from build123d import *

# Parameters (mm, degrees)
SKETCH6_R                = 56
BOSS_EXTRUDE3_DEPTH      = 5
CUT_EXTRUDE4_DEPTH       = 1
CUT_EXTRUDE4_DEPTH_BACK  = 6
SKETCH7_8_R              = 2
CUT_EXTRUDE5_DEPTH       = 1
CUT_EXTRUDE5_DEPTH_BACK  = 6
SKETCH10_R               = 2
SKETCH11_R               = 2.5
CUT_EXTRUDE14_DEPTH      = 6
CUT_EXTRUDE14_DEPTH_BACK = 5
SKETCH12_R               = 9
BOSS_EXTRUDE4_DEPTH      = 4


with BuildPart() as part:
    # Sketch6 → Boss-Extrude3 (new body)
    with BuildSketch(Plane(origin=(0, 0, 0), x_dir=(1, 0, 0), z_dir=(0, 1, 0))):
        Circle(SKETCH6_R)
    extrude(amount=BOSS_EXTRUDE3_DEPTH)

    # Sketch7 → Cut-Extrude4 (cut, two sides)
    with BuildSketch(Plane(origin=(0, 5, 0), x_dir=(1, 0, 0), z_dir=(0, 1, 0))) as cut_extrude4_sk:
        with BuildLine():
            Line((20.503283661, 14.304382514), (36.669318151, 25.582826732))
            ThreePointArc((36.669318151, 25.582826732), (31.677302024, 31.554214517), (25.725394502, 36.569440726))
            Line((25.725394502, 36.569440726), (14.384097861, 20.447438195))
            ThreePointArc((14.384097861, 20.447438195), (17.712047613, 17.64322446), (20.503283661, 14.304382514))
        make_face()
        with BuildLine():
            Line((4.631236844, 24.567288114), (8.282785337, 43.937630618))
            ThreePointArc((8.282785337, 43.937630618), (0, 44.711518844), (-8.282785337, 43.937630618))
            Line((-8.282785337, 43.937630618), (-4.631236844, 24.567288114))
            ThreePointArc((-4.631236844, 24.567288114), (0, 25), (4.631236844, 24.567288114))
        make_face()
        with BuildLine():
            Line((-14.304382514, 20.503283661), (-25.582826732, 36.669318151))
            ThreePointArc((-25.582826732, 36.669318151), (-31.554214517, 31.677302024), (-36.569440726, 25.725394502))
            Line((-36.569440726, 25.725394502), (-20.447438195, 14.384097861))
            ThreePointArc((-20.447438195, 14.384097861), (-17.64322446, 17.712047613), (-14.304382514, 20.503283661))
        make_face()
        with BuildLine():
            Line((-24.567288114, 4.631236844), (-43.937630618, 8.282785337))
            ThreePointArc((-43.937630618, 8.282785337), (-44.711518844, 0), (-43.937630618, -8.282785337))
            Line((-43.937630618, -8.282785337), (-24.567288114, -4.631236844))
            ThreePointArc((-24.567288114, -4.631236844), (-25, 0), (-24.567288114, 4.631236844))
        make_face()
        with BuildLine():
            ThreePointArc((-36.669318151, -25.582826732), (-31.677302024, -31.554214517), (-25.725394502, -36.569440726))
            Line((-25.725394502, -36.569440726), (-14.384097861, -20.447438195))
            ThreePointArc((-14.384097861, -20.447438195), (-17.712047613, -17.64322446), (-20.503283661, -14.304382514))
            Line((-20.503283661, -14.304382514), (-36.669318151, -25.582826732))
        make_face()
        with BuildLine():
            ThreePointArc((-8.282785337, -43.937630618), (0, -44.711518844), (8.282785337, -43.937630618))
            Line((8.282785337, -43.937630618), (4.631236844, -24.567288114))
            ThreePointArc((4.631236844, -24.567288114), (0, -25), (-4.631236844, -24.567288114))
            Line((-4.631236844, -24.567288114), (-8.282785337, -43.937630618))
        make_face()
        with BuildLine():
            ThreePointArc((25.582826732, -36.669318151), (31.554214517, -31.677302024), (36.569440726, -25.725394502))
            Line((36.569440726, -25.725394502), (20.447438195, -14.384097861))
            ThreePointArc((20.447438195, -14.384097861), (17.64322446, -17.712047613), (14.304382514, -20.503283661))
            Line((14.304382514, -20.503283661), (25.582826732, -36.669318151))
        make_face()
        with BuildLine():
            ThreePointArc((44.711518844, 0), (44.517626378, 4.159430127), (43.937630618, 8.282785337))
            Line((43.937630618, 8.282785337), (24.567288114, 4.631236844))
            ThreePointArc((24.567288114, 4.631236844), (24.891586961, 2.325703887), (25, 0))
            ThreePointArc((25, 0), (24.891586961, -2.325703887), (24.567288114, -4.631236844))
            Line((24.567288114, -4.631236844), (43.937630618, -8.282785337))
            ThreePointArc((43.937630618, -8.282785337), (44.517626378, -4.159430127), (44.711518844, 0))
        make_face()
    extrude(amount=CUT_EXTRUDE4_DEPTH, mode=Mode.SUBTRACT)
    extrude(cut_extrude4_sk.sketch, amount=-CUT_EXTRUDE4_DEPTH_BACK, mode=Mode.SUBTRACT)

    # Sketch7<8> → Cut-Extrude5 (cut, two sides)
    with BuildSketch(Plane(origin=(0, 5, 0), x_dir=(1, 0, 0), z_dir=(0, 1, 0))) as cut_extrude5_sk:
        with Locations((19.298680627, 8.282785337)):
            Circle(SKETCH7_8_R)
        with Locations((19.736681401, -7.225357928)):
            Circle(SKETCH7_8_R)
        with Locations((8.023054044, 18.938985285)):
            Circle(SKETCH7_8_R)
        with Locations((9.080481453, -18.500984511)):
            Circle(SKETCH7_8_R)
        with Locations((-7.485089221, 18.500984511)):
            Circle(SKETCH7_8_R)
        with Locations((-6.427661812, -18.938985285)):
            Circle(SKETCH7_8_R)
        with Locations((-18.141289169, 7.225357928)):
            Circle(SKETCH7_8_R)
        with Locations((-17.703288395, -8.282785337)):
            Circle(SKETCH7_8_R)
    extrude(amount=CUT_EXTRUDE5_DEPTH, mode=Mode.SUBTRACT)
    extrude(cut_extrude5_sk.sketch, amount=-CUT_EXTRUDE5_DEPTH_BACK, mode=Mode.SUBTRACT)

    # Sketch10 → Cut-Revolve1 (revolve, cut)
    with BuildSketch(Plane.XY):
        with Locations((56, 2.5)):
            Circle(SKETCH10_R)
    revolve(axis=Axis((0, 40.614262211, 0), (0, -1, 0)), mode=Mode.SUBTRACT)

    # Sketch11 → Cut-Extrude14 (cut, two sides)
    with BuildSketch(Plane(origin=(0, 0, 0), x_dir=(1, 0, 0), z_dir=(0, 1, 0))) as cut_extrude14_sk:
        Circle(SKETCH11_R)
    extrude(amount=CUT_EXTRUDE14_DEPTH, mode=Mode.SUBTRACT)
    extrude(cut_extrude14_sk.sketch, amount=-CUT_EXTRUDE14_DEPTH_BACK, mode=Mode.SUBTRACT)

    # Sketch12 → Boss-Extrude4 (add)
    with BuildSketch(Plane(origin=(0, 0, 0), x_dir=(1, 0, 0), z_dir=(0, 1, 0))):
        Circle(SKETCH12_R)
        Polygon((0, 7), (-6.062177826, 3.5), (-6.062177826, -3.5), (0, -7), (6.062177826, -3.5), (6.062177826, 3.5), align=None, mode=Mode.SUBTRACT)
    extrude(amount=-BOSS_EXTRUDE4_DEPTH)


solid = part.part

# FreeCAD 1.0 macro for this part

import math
import FreeCAD as App
import Part
import Sketcher
from FreeCAD import Vector
Q = App.Units.Quantity


def add_polygon(sketch, points):
    """Adds a closed chain of lines whose ends are joined by coincident constraints."""
    first, n = sketch.GeometryCount, len(points)
    for a, b in zip(points, points[1:] + points[:1]):
        sketch.addGeometry(Part.LineSegment(App.Vector(*a, 0), App.Vector(*b, 0)), False)
    for i in range(n):
        sketch.addConstraint(Sketcher.Constraint("Coincident", first + i, 2, first + (i + 1) % n, 1))

doc = App.newDocument("Part")
body = doc.addObject("PartDesign::Body", "Body")

# Sketch on XZ plane
sketch1 = body.newObject("Sketcher::SketchObject", "Sketch")
sketch1.AttachmentSupport = (doc.getObject("XZ_Plane"), [""])
sketch1.MapMode = "FlatFace"
sketch1.addGeometry(Part.Circle(Vector(0, 0, 0), Vector(0, 0, 1), 56), False)
sketch1.addConstraint(Sketcher.Constraint("Coincident", 0, 3, -1, 1))
sketch1.addConstraint(Sketcher.Constraint("Diameter", 0, 112.0))
pad1 = body.newObject("PartDesign::Pad", "Pad")
pad1.Profile = sketch1
pad1.Length = 5
pad1.Reversed = True

# Sketch on XZ plane
sketch2 = body.newObject("Sketcher::SketchObject", "Sketch001")
sketch2.AttachmentSupport = (doc.getObject("XZ_Plane"), [""])
sketch2.MapMode = "FlatFace"
sketch2.AttachmentOffset = App.Placement(Vector(0, 0, -5), App.Rotation())
sketch2.addGeometry(Part.LineSegment(Vector(20.5, -14.3, 0), Vector(36.7, -25.6, 0)), False)
sketch2.addGeometry(Part.ArcOfCircle(Part.Circle(Vector(0, 0, 0), Vector(0, 0, 1), 44.7), math.radians(-54.87), math.radians(-34.9)), False)
sketch2.addGeometry(Part.LineSegment(Vector(25.7, -36.6, 0), Vector(14.4, -20.4, 0)), False)
sketch2.addGeometry(Part.ArcOfCircle(Part.Circle(Vector(0, 0, 0), Vector(0, 0, 1), 25), math.radians(-54.87), math.radians(-34.9)), False)
sketch2.addGeometry(Part.LineSegment(Vector(4.6, -24.6, 0), Vector(8.3, -43.9, 0)), False)
sketch2.addGeometry(Part.ArcOfCircle(Part.Circle(Vector(0, 0, 0), Vector(0, 0, 1), 44.7), math.radians(-101), math.radians(-79)), False)
sketch2.addGeometry(Part.LineSegment(Vector(-8.3, -43.9, 0), Vector(-4.6, -24.6, 0)), False)
sketch2.addGeometry(Part.ArcOfCircle(Part.Circle(Vector(0, 0, 0), Vector(0, 0, 1), 25), math.radians(-101), math.radians(-79)), False)
sketch2.addGeometry(Part.LineSegment(Vector(-14.3, -20.5, 0), Vector(-25.6, -36.7, 0)), False)
sketch2.addGeometry(Part.ArcOfCircle(Part.Circle(Vector(0, 0, 0), Vector(0, 0, 1), 44.7), math.radians(-144.87), math.radians(-124.9)), False)
sketch2.addGeometry(Part.LineSegment(Vector(-36.6, -25.7, 0), Vector(-20.4, -14.4, 0)), False)
sketch2.addGeometry(Part.ArcOfCircle(Part.Circle(Vector(0, 0, 0), Vector(0, 0, 1), 25), math.radians(-144.87), math.radians(-124.9)), False)
sketch2.addGeometry(Part.LineSegment(Vector(-24.6, -4.6, 0), Vector(-43.9, -8.3, 0)), False)
sketch2.addGeometry(Part.ArcOfCircle(Part.Circle(Vector(0, 0, 0), Vector(0, 0, 1), 44.7), math.radians(169), math.radians(191)), False)
sketch2.addGeometry(Part.LineSegment(Vector(-43.9, 8.3, 0), Vector(-24.6, 4.6, 0)), False)
sketch2.addGeometry(Part.ArcOfCircle(Part.Circle(Vector(0, 0, 0), Vector(0, 0, 1), 25), math.radians(169), math.radians(191)), False)
sketch2.addGeometry(Part.ArcOfCircle(Part.Circle(Vector(0, 0, 0), Vector(0, 0, 1), 44.7), math.radians(125.13), math.radians(145.1)), False)
sketch2.addGeometry(Part.LineSegment(Vector(-25.7, 36.6, 0), Vector(-14.4, 20.4, 0)), False)
sketch2.addGeometry(Part.ArcOfCircle(Part.Circle(Vector(0, 0, 0), Vector(0, 0, 1), 25), math.radians(125.13), math.radians(145.1)), False)
sketch2.addGeometry(Part.LineSegment(Vector(-20.5, 14.3, 0), Vector(-36.7, 25.6, 0)), False)
sketch2.addGeometry(Part.ArcOfCircle(Part.Circle(Vector(0, 0, 0), Vector(0, 0, 1), 44.7), math.radians(79), math.radians(101)), False)
sketch2.addGeometry(Part.LineSegment(Vector(8.3, 43.9, 0), Vector(4.6, 24.6, 0)), False)
sketch2.addGeometry(Part.ArcOfCircle(Part.Circle(Vector(0, 0, 0), Vector(0, 0, 1), 25), math.radians(79), math.radians(101)), False)
sketch2.addGeometry(Part.LineSegment(Vector(-4.6, 24.6, 0), Vector(-8.3, 43.9, 0)), False)
sketch2.addGeometry(Part.ArcOfCircle(Part.Circle(Vector(0, 0, 0), Vector(0, 0, 1), 44.7), math.radians(35.13), math.radians(55.1)), False)
sketch2.addGeometry(Part.LineSegment(Vector(36.6, 25.7, 0), Vector(20.4, 14.4, 0)), False)
sketch2.addGeometry(Part.ArcOfCircle(Part.Circle(Vector(0, 0, 0), Vector(0, 0, 1), 25), math.radians(35.13), math.radians(55.1)), False)
sketch2.addGeometry(Part.LineSegment(Vector(14.3, 20.5, 0), Vector(25.6, 36.7, 0)), False)
sketch2.addGeometry(Part.ArcOfCircle(Part.Circle(Vector(0, 0, 0), Vector(0, 0, 1), 44.7), math.radians(-10.68), math.radians(0)), False)
sketch2.addGeometry(Part.LineSegment(Vector(43.9, -8.3, 0), Vector(24.6, -4.6, 0)), False)
sketch2.addGeometry(Part.ArcOfCircle(Part.Circle(Vector(0, 0, 0), Vector(0, 0, 1), 25), math.radians(-10.68), math.radians(0)), False)
sketch2.addGeometry(Part.ArcOfCircle(Part.Circle(Vector(0, 0, 0), Vector(0, 0, 1), 25), math.radians(0), math.radians(10.68)), False)
sketch2.addGeometry(Part.LineSegment(Vector(24.6, 4.6, 0), Vector(43.9, 8.3, 0)), False)
sketch2.addGeometry(Part.ArcOfCircle(Part.Circle(Vector(0, 0, 0), Vector(0, 0, 1), 44.7), math.radians(0), math.radians(10.68)), False)
sketch2.addConstraint(Sketcher.Constraint("Coincident", 0, 2, 1, 2))
sketch2.addConstraint(Sketcher.Constraint("Coincident", 1, 1, 2, 1))
sketch2.addConstraint(Sketcher.Constraint("Coincident", 2, 2, 3, 1))
sketch2.addConstraint(Sketcher.Constraint("Coincident", 3, 2, 0, 1))
sketch2.addConstraint(Sketcher.Constraint("Coincident", 4, 2, 5, 2))
sketch2.addConstraint(Sketcher.Constraint("Coincident", 5, 1, 6, 1))
sketch2.addConstraint(Sketcher.Constraint("Coincident", 6, 2, 7, 1))
sketch2.addConstraint(Sketcher.Constraint("Coincident", 7, 2, 4, 1))
sketch2.addConstraint(Sketcher.Constraint("Coincident", 8, 2, 9, 2))
sketch2.addConstraint(Sketcher.Constraint("Coincident", 9, 1, 10, 1))
sketch2.addConstraint(Sketcher.Constraint("Coincident", 10, 2, 11, 1))
sketch2.addConstraint(Sketcher.Constraint("Coincident", 11, 2, 8, 1))
sketch2.addConstraint(Sketcher.Constraint("Coincident", 12, 2, 13, 2))
sketch2.addConstraint(Sketcher.Constraint("Coincident", 13, 1, 14, 1))
sketch2.addConstraint(Sketcher.Constraint("Coincident", 14, 2, 15, 1))
sketch2.addConstraint(Sketcher.Constraint("Coincident", 15, 2, 12, 1))
sketch2.addConstraint(Sketcher.Constraint("Coincident", 16, 1, 17, 1))
sketch2.addConstraint(Sketcher.Constraint("Coincident", 17, 2, 18, 1))
sketch2.addConstraint(Sketcher.Constraint("Coincident", 18, 2, 19, 1))
sketch2.addConstraint(Sketcher.Constraint("Coincident", 19, 2, 16, 2))
sketch2.addConstraint(Sketcher.Constraint("Coincident", 20, 1, 21, 1))
sketch2.addConstraint(Sketcher.Constraint("Coincident", 21, 2, 22, 1))
sketch2.addConstraint(Sketcher.Constraint("Coincident", 22, 2, 23, 1))
sketch2.addConstraint(Sketcher.Constraint("Coincident", 23, 2, 20, 2))
sketch2.addConstraint(Sketcher.Constraint("Coincident", 24, 1, 25, 1))
sketch2.addConstraint(Sketcher.Constraint("Coincident", 25, 2, 26, 1))
sketch2.addConstraint(Sketcher.Constraint("Coincident", 26, 2, 27, 1))
sketch2.addConstraint(Sketcher.Constraint("Coincident", 27, 2, 24, 2))
sketch2.addConstraint(Sketcher.Constraint("Coincident", 28, 1, 29, 1))
sketch2.addConstraint(Sketcher.Constraint("Coincident", 29, 2, 30, 1))
sketch2.addConstraint(Sketcher.Constraint("Tangent", 30, 2, 31, 1))
sketch2.addConstraint(Sketcher.Constraint("Coincident", 31, 2, 32, 1))
sketch2.addConstraint(Sketcher.Constraint("Coincident", 32, 2, 33, 2))
sketch2.addConstraint(Sketcher.Constraint("Tangent", 33, 1, 28, 2))
sketch2.addConstraint(Sketcher.Constraint("Coincident", 1, 3, -1, 1))
sketch2.addConstraint(Sketcher.Constraint("Coincident", 3, 3, -1, 1))
sketch2.addConstraint(Sketcher.Constraint("Coincident", 5, 3, -1, 1))
sketch2.addConstraint(Sketcher.Constraint("Coincident", 7, 3, -1, 1))
sketch2.addConstraint(Sketcher.Constraint("Coincident", 9, 3, -1, 1))
sketch2.addConstraint(Sketcher.Constraint("Coincident", 11, 3, -1, 1))
sketch2.addConstraint(Sketcher.Constraint("Coincident", 13, 3, -1, 1))
sketch2.addConstraint(Sketcher.Constraint("Coincident", 15, 3, -1, 1))
sketch2.addConstraint(Sketcher.Constraint("Coincident", 16, 3, -1, 1))
sketch2.addConstraint(Sketcher.Constraint("Coincident", 18, 3, -1, 1))
sketch2.addConstraint(Sketcher.Constraint("Coincident", 20, 3, -1, 1))
sketch2.addConstraint(Sketcher.Constraint("Coincident", 22, 3, -1, 1))
sketch2.addConstraint(Sketcher.Constraint("Coincident", 24, 3, -1, 1))
sketch2.addConstraint(Sketcher.Constraint("Coincident", 26, 3, -1, 1))
sketch2.addConstraint(Sketcher.Constraint("Coincident", 28, 3, -1, 1))
sketch2.addConstraint(Sketcher.Constraint("Coincident", 30, 3, -1, 1))
sketch2.addConstraint(Sketcher.Constraint("Equal", 1, 5))
sketch2.addConstraint(Sketcher.Constraint("Equal", 3, 7))
sketch2.addConstraint(Sketcher.Constraint("Equal", 5, 9))
sketch2.addConstraint(Sketcher.Constraint("Equal", 7, 11))
sketch2.addConstraint(Sketcher.Constraint("Equal", 9, 13))
sketch2.addConstraint(Sketcher.Constraint("Equal", 11, 15))
sketch2.addConstraint(Sketcher.Constraint("Equal", 13, 16))
sketch2.addConstraint(Sketcher.Constraint("Equal", 15, 18))
sketch2.addConstraint(Sketcher.Constraint("Equal", 16, 20))
sketch2.addConstraint(Sketcher.Constraint("Equal", 18, 22))
sketch2.addConstraint(Sketcher.Constraint("Equal", 20, 24))
sketch2.addConstraint(Sketcher.Constraint("Equal", 22, 26))
sketch2.addConstraint(Sketcher.Constraint("Equal", 24, 28))
sketch2.addConstraint(Sketcher.Constraint("Equal", 26, 30))
sketch2.addConstraint(Sketcher.Constraint("Equal", 30, 31))
sketch2.addConstraint(Sketcher.Constraint("Equal", 28, 33))
sketch2.addConstraint(Sketcher.Constraint("PointOnObject", 30, 2, -1))
sketch2.addConstraint(Sketcher.Constraint("PointOnObject", 33, 1, -1))
sketch2.addConstraint(Sketcher.Constraint("Perpendicular", 0, 8))
sketch2.addConstraint(Sketcher.Constraint("Perpendicular", 2, 10))
sketch2.addConstraint(Sketcher.Constraint("Perpendicular", 4, 12))
sketch2.addConstraint(Sketcher.Constraint("Perpendicular", 6, 14))
sketch2.addConstraint(Sketcher.Constraint("Perpendicular", 10, 17))
sketch2.addConstraint(Sketcher.Constraint("Perpendicular", 8, 19))
sketch2.addConstraint(Sketcher.Constraint("Perpendicular", 14, 21))
sketch2.addConstraint(Sketcher.Constraint("Perpendicular", 12, 23))
sketch2.addConstraint(Sketcher.Constraint("Perpendicular", 17, 25))
sketch2.addConstraint(Sketcher.Constraint("Perpendicular", 19, 27))
sketch2.addConstraint(Sketcher.Constraint("Perpendicular", 21, 29))
sketch2.addConstraint(Sketcher.Constraint("Perpendicular", 23, 32))
sketch2.addConstraint(Sketcher.Constraint("Horizontal", 4, 2, 5, 1))
sketch2.addConstraint(Sketcher.Constraint("Horizontal", 6, 2, 7, 2))
sketch2.addConstraint(Sketcher.Constraint("Horizontal", 21, 2, 22, 2))
sketch2.addConstraint(Sketcher.Constraint("Horizontal", 12, 2, 28, 1))
sketch2.addConstraint(Sketcher.Constraint("Horizontal", 14, 2, 31, 2))
sketch2.addConstraint(Sketcher.Constraint("Vertical", 12, 2, 13, 1))
sketch2.addConstraint(Sketcher.Constraint("Vertical", 4, 2, 20, 1))
sketch2.addConstraint(Sketcher.Constraint("Radius", 3, 25.0))
sketch2.addConstraint(Sketcher.Constraint("Radius", 1, 44.711519))
sketch2.addConstraint(Sketcher.Constraint("DistanceX", 4, 2, 3, 2, 12.220498))
sketch2.addConstraint(Sketcher.Constraint("DistanceX", 10, 2, 6, 2, 15.816201))
sketch2.addConstraint(Sketcher.Constraint("DistanceY", 11, 2, 12, 2, 12.220498))
sketch2.addConstraint(Sketcher.Constraint("DistanceY", 14, 2, 17, 2, 15.816201))
sketch2.addConstraint(Sketcher.Constraint("DistanceX", 21, 2, 25, 2, 15.816201))
sketch2.addConstraint(Sketcher.Constraint("DistanceY", 2, 2, 29, 2, 15.816201))
sketch2.addConstraint(Sketcher.Constraint("DistanceX", -1, 1, 0, 2, 36.669318))
sketch2.addConstraint(Sketcher.Constraint("DistanceY", 1, 1, -1, 1, 36.569441))
sketch2.addConstraint(Sketcher.Constraint("DistanceY", 2, 2, -1, 1, 20.447438))
sketch2.addConstraint(Sketcher.Constraint("DistanceY", 4, 2, -1, 1, 43.937631))
sketch2.addConstraint(Sketcher.Constraint("DistanceY", 6, 2, -1, 1, 24.567288))
sketch2.addConstraint(Sketcher.Constraint("DistanceX", 19, 2, -1, 1, 36.669318))
sketch2.addConstraint(Sketcher.Constraint("DistanceY", -1, 1, 27, 2, 36.669318))
pocket1 = body.newObject("PartDesign::Pocket", "Pocket")
pocket1.Profile = sketch2
pocket1.Type = "ThroughAll"
pocket1.Midplane = True

# Sketch on XZ plane
sketch3 = body.newObject("Sketcher::SketchObject", "Sketch002")
sketch3.AttachmentSupport = (doc.getObject("XZ_Plane"), [""])
sketch3.MapMode = "FlatFace"
sketch3.AttachmentOffset = App.Placement(Vector(0, 0, -5), App.Rotation())
sketch3.addGeometry(Part.Circle(Vector(19.3, -8.3, 0), Vector(0, 0, 1), 2), False)
sketch3.addGeometry(Part.Circle(Vector(19.7, 7.2, 0), Vector(0, 0, 1), 2), False)
sketch3.addGeometry(Part.Circle(Vector(8, -18.9, 0), Vector(0, 0, 1), 2), False)
sketch3.addGeometry(Part.Circle(Vector(9.1, 18.5, 0), Vector(0, 0, 1), 2), False)
sketch3.addGeometry(Part.Circle(Vector(-7.5, -18.5, 0), Vector(0, 0, 1), 2), False)
sketch3.addGeometry(Part.Circle(Vector(-6.4, 18.9, 0), Vector(0, 0, 1), 2), False)
sketch3.addGeometry(Part.Circle(Vector(-18.1, -7.2, 0), Vector(0, 0, 1), 2), False)
sketch3.addGeometry(Part.Circle(Vector(-17.7, 8.3, 0), Vector(0, 0, 1), 2), False)
sketch3.addConstraint(Sketcher.Constraint("Equal", 0, 1))
sketch3.addConstraint(Sketcher.Constraint("Equal", 1, 2))
sketch3.addConstraint(Sketcher.Constraint("Equal", 2, 3))
sketch3.addConstraint(Sketcher.Constraint("Equal", 3, 4))
sketch3.addConstraint(Sketcher.Constraint("Equal", 4, 5))
sketch3.addConstraint(Sketcher.Constraint("Equal", 5, 6))
sketch3.addConstraint(Sketcher.Constraint("Equal", 6, 7))
sketch3.addConstraint(Sketcher.Constraint("Diameter", 0, 4.0))
sketch3.addConstraint(Sketcher.Constraint("DistanceX", 0, 3, 1, 3, 0.438001))
sketch3.addConstraint(Sketcher.Constraint("DistanceY", 2, 3, 4, 3, 0.438001))
sketch3.addConstraint(Sketcher.Constraint("DistanceY", 3, 3, 5, 3, 0.438001))
sketch3.addConstraint(Sketcher.Constraint("DistanceX", 6, 3, 7, 3, 0.438001))
sketch3.addConstraint(Sketcher.Constraint("DistanceY", 2, 3, 0, 3, 10.6562))
sketch3.addConstraint(Sketcher.Constraint("DistanceX", 3, 3, 1, 3, 10.6562))
sketch3.addConstraint(Sketcher.Constraint("DistanceX", 6, 3, 4, 3, 10.6562))
sketch3.addConstraint(Sketcher.Constraint("DistanceY", 7, 3, 5, 3, 10.6562))
sketch3.addConstraint(Sketcher.Constraint("DistanceX", -1, 1, 0, 3, 19.298681))
sketch3.addConstraint(Sketcher.Constraint("DistanceX", 4, 3, -1, 1, 7.485089))
sketch3.addConstraint(Sketcher.Constraint("DistanceX", 5, 3, -1, 1, 6.427662))
sketch3.addConstraint(Sketcher.Constraint("DistanceY", 0, 3, 3, 3, 26.78377))
sketch3.addConstraint(Sketcher.Constraint("DistanceY", 0, 3, -1, 1, 8.282785))
sketch3.addConstraint(Sketcher.Constraint("DistanceY", -1, 1, 1, 3, 7.225358))
sketch3.addConstraint(Sketcher.Constraint("DistanceX", -1, 1, 2, 3, 8.023054))
sketch3.addConstraint(Sketcher.Constraint("DistanceY", 6, 3, -1, 1, 7.225358))
pocket2 = body.newObject("PartDesign::Pocket", "Pocket001")
pocket2.Profile = sketch3
pocket2.Type = "ThroughAll"
pocket2.Midplane = True

# Sketch on XY plane
sketch4 = body.newObject("Sketcher::SketchObject", "Sketch003")
sketch4.AttachmentSupport = (doc.getObject("XY_Plane"), [""])
sketch4.MapMode = "FlatFace"
sketch4.addGeometry(Part.Circle(Vector(56, 2.5, 0), Vector(0, 0, 1), 2), False)
sketch4.addConstraint(Sketcher.Constraint("Diameter", 0, 4.0))
sketch4.addConstraint(Sketcher.Constraint("DistanceX", -1, 1, 0, 3, 56.0))
sketch4.addConstraint(Sketcher.Constraint("DistanceY", -1, 1, 0, 3, 2.5))
groove = body.newObject("PartDesign::Groove", "Groove")
groove.Profile = sketch4
groove.ReferenceAxis = (sketch4, ["V_Axis"])
groove.Angle = 360

# Sketch on XZ plane
sketch5 = body.newObject("Sketcher::SketchObject", "Sketch004")
sketch5.AttachmentSupport = (doc.getObject("XZ_Plane"), [""])
sketch5.MapMode = "FlatFace"
sketch5.addGeometry(Part.Circle(Vector(0, 0, 0), Vector(0, 0, 1), 2.5), False)
sketch5.addConstraint(Sketcher.Constraint("Coincident", 0, 3, -1, 1))
sketch5.addConstraint(Sketcher.Constraint("Diameter", 0, 5.0))
pocket3 = body.newObject("PartDesign::Pocket", "Pocket002")
pocket3.Profile = sketch5
pocket3.Type = "ThroughAll"
pocket3.Midplane = True

# Sketch on XZ plane
sketch6 = body.newObject("Sketcher::SketchObject", "Sketch005")
sketch6.AttachmentSupport = (doc.getObject("XZ_Plane"), [""])
sketch6.MapMode = "FlatFace"
sketch6.addGeometry(Part.Circle(Vector(0, 0, 0), Vector(0, 0, 1), 9), False)  # 0
add_polygon(sketch6, [(-6, -4), (0, -7), (6, -4), (6, 4), (0, 7), (-6, 4)])  # lines 1-6
sketch6.addConstraint(Sketcher.Constraint("Vertical", 3))
sketch6.addConstraint(Sketcher.Constraint("Vertical", 6))
sketch6.addConstraint(Sketcher.Constraint("Coincident", 0, 3, -1, 1))
sketch6.addConstraint(Sketcher.Constraint("Symmetric", 1, 2, 4, 2, -1, 1))
sketch6.addConstraint(Sketcher.Constraint("Symmetric", 2, 2, 5, 2, -1, 1))
sketch6.addConstraint(Sketcher.Constraint("PointOnObject", 1, 2, -2))
sketch6.addConstraint(Sketcher.Constraint("Parallel", 1, 4))
sketch6.addConstraint(Sketcher.Constraint("Horizontal", 3, 2, 5, 2))
sketch6.addConstraint(Sketcher.Constraint("Diameter", 0, 18.0))
sketch6.addConstraint(Sketcher.Constraint("DistanceY", 3, 1, 3, 2, 7.0))
sketch6.addConstraint(Sketcher.Constraint("Angle", 1, Q("-30 deg")))
sketch6.addConstraint(Sketcher.Constraint("Distance", 1, 7.0))
pad2 = body.newObject("PartDesign::Pad", "Pad001")
pad2.Profile = sketch6
pad2.Length = 4

doc.recompute()
